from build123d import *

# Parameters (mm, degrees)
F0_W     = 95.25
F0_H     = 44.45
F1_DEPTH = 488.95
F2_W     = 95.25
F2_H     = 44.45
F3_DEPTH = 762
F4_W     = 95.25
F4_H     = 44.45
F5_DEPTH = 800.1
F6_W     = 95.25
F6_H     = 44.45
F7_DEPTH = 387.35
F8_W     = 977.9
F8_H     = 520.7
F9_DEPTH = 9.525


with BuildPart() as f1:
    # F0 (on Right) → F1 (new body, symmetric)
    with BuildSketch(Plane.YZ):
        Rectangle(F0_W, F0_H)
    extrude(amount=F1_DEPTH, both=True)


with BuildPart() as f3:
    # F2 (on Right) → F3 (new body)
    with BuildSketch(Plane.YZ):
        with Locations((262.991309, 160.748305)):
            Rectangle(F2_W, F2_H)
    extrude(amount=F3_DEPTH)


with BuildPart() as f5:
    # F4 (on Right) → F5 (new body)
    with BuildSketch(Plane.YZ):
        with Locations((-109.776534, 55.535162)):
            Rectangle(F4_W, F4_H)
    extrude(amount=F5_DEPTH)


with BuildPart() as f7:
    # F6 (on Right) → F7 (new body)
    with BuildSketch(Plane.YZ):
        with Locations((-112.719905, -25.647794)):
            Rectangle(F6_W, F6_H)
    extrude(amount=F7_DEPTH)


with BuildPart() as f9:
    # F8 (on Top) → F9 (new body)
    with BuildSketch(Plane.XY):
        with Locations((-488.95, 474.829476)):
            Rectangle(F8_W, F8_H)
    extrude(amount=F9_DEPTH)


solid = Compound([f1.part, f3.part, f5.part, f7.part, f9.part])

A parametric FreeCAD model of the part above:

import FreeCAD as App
import Part
import Sketcher

V = App.Vector
Q = App.Units.Quantity

doc = App.newDocument("Part")
body = doc.addObject("PartDesign::Body", "Body")

# Sketch on YZ plane
sketch1 = doc.addObject("Sketcher::SketchObject", "Sketch")
body.addObject(sketch1)
sketch1.AttachmentSupport = (doc.YZ_Plane, [""])
sketch1.MapMode = "FlatFace"
sketch1.addGeometry([
    Part.LineSegment(V(-48, 22, 0), V(-48, -22, 0)),
    Part.LineSegment(V(-48, -22, 0), V(48, -22, 0)),
    Part.LineSegment(V(48, -22, 0), V(48, 22, 0)),
    Part.LineSegment(V(48, 22, 0), V(-48, 22, 0)),
], False)
sketch1.addConstraint([
    Sketcher.Constraint("Coincident", 0, 2, 1, 1),
    Sketcher.Constraint("Coincident", 1, 2, 2, 1),
    Sketcher.Constraint("Coincident", 2, 2, 3, 1),
    Sketcher.Constraint("Coincident", 3, 2, 0, 1),
    Sketcher.Constraint("Vertical", 0),
    Sketcher.Constraint("Horizontal", 1),
    Sketcher.Constraint("Vertical", 2),
    Sketcher.Constraint("Horizontal", 3),
    Sketcher.Constraint("Symmetric", 0, 2, 2, 2, -1, 1),
    Sketcher.Constraint("DistanceX", 1, 1, 1, 2, Q("3.75 in")),
    Sketcher.Constraint("DistanceY", 0, 2, 0, 1, Q("1.75 in")),
])
pad1 = doc.addObject("PartDesign::Pad", "Pad")
body.addObject(pad1)
pad1.Profile = sketch1
pad1.Length = Q("38.5 in")
pad1.Midplane = True
body2 = doc.addObject("PartDesign::Body", "Body001")

# Sketch on YZ plane
sketch2 = doc.addObject("Sketcher::SketchObject", "Sketch001")
body2.addObject(sketch2)
sketch2.AttachmentSupport = (doc.getObject("YZ_Plane001"), [""])
sketch2.MapMode = "FlatFace"
sketch2.addGeometry([
    Part.LineSegment(V(215, 183, 0), V(215, 139, 0)),
    Part.LineSegment(V(215, 139, 0), V(311, 139, 0)),
    Part.LineSegment(V(311, 139, 0), V(311, 183, 0)),
    Part.LineSegment(V(311, 183, 0), V(215, 183, 0)),
], False)
sketch2.addConstraint([
    Sketcher.Constraint("Coincident", 0, 2, 1, 1),
    Sketcher.Constraint("Coincident", 1, 2, 2, 1),
    Sketcher.Constraint("Coincident", 2, 2, 3, 1),
    Sketcher.Constraint("Coincident", 3, 2, 0, 1),
    Sketcher.Constraint("Vertical", 0),
    Sketcher.Constraint("Horizontal", 1),
    Sketcher.Constraint("Vertical", 2),
    Sketcher.Constraint("Horizontal", 3),
    Sketcher.Constraint("DistanceX", 1, 1, 1, 2, Q("3.75 in")),
    Sketcher.Constraint("DistanceY", 0, 2, 0, 1, Q("1.75 in")),
    Sketcher.Constraint("DistanceX", -1, 1, 0, 2, 215.366309),
    Sketcher.Constraint("DistanceY", -1, 1, 0, 2, 138.523305),
])
pad2 = doc.addObject("PartDesign::Pad", "Pad001")
body2.addObject(pad2)
pad2.Profile = sketch2
pad2.Length = Q("30 in")
body3 = doc.addObject("PartDesign::Body", "Body002")

# Sketch on YZ plane
sketch3 = doc.addObject("Sketcher::SketchObject", "Sketch002")
body3.addObject(sketch3)
sketch3.AttachmentSupport = (doc.getObject("YZ_Plane002"), [""])
sketch3.MapMode = "FlatFace"
sketch3.addGeometry([
    Part.LineSegment(V(-157, 78, 0), V(-157, 33, 0)),
    Part.LineSegment(V(-157, 33, 0), V(-62, 33, 0)),
    Part.LineSegment(V(-62, 33, 0), V(-62, 78, 0)),
    Part.LineSegment(V(-62, 78, 0), V(-157, 78, 0)),
], False)
sketch3.addConstraint([
    Sketcher.Constraint("Coincident", 0, 2, 1, 1),
    Sketcher.Constraint("Coincident", 1, 2, 2, 1),
    Sketcher.Constraint("Coincident", 2, 2, 3, 1),
    Sketcher.Constraint("Coincident", 3, 2, 0, 1),
    Sketcher.Constraint("Vertical", 0),
    Sketcher.Constraint("Horizontal", 1),
    Sketcher.Constraint("Vertical", 2),
    Sketcher.Constraint("Horizontal", 3),
    Sketcher.Constraint("DistanceX", 1, 1, 1, 2, Q("3.75 in")),
    Sketcher.Constraint("DistanceY", 0, 2, 0, 1, Q("1.75 in")),
    Sketcher.Constraint("DistanceY", -1, 1, 0, 2, 33.310162),
    Sketcher.Constraint("DistanceX", 0, 2, -1, 1, 157.401534),
])
pad3 = doc.addObject("PartDesign::Pad", "Pad002")
body3.addObject(pad3)
pad3.Profile = sketch3
pad3.Length = Q("31.5 in")
body4 = doc.addObject("PartDesign::Body", "Body003")

# Sketch on YZ plane
sketch4 = doc.addObject("Sketcher::SketchObject", "Sketch003")
body4.addObject(sketch4)
sketch4.AttachmentSupport = (doc.getObject("YZ_Plane003"), [""])
sketch4.MapMode = "FlatFace"
sketch4.addGeometry([
    Part.LineSegment(V(-160, -3, 0), V(-160, -48, 0)),
    Part.LineSegment(V(-160, -48, 0), V(-65, -48, 0)),
    Part.LineSegment(V(-65, -48, 0), V(-65, -3, 0)),
    Part.LineSegment(V(-65, -3, 0), V(-160, -3, 0)),
], False)
sketch4.addConstraint([
    Sketcher.Constraint("Coincident", 0, 2, 1, 1),
    Sketcher.Constraint("Coincident", 1, 2, 2, 1),
    Sketcher.Constraint("Coincident", 2, 2, 3, 1),
    Sketcher.Constraint("Coincident", 3, 2, 0, 1),
    Sketcher.Constraint("Vertical", 0),
    Sketcher.Constraint("Horizontal", 1),
    Sketcher.Constraint("Vertical", 2),
    Sketcher.Constraint("Horizontal", 3),
    Sketcher.Constraint("DistanceX", 1, 1, 1, 2, Q("3.75 in")),
    Sketcher.Constraint("DistanceY", 0, 2, 0, 1, Q("1.75 in")),
    Sketcher.Constraint("DistanceX", 0, 2, -1, 1, 160.344905),
    Sketcher.Constraint("DistanceY", 0, 2, -1, 1, 47.872794),
])
pad4 = doc.addObject("PartDesign::Pad", "Pad003")
body4.addObject(pad4)
pad4.Profile = sketch4
pad4.Length = Q("15.25 in")
body5 = doc.addObject("PartDesign::Body", "Body004")

# Sketch on XY plane
sketch5 = doc.addObject("Sketcher::SketchObject", "Sketch004")
body5.addObject(sketch5)
sketch5.AttachmentSupport = (doc.getObject("XY_Plane004"), [""])
sketch5.MapMode = "FlatFace"
sketch5.addGeometry([
    Part.LineSegment(V(-978, 735, 0), V(-978, 214, 0)),
    Part.LineSegment(V(-978, 214, 0), V(0, 214, 0)),
    Part.LineSegment(V(0, 214, 0), V(0, 735, 0)),
    Part.LineSegment(V(0, 735, 0), V(-978, 735, 0)),
], False)
sketch5.addConstraint([
    Sketcher.Constraint("Coincident", 0, 2, 1, 1),
    Sketcher.Constraint("Coincident", 1, 2, 2, 1),
    Sketcher.Constraint("Coincident", 2, 2, 3, 1),
    Sketcher.Constraint("Coincident", 3, 2, 0, 1),
    Sketcher.Constraint("Vertical", 0),
    Sketcher.Constraint("Horizontal", 1),
    Sketcher.Constraint("Vertical", 2),
    Sketcher.Constraint("Horizontal", 3),
    Sketcher.Constraint("PointOnObject", 1, 2, -2),
    Sketcher.Constraint("DistanceX", 1, 1, 1, 2, Q("38.5 in")),
    Sketcher.Constraint("DistanceY", 0, 2, 0, 1, Q("20.5 in")),
    Sketcher.Constraint("DistanceY", -1, 1, 0, 2, 214.479476),
])
pad5 = doc.addObject("PartDesign::Pad", "Pad004")
body5.addObject(pad5)
pad5.Profile = sketch5
pad5.Length = Q("0.375 in")

doc.recompute()
